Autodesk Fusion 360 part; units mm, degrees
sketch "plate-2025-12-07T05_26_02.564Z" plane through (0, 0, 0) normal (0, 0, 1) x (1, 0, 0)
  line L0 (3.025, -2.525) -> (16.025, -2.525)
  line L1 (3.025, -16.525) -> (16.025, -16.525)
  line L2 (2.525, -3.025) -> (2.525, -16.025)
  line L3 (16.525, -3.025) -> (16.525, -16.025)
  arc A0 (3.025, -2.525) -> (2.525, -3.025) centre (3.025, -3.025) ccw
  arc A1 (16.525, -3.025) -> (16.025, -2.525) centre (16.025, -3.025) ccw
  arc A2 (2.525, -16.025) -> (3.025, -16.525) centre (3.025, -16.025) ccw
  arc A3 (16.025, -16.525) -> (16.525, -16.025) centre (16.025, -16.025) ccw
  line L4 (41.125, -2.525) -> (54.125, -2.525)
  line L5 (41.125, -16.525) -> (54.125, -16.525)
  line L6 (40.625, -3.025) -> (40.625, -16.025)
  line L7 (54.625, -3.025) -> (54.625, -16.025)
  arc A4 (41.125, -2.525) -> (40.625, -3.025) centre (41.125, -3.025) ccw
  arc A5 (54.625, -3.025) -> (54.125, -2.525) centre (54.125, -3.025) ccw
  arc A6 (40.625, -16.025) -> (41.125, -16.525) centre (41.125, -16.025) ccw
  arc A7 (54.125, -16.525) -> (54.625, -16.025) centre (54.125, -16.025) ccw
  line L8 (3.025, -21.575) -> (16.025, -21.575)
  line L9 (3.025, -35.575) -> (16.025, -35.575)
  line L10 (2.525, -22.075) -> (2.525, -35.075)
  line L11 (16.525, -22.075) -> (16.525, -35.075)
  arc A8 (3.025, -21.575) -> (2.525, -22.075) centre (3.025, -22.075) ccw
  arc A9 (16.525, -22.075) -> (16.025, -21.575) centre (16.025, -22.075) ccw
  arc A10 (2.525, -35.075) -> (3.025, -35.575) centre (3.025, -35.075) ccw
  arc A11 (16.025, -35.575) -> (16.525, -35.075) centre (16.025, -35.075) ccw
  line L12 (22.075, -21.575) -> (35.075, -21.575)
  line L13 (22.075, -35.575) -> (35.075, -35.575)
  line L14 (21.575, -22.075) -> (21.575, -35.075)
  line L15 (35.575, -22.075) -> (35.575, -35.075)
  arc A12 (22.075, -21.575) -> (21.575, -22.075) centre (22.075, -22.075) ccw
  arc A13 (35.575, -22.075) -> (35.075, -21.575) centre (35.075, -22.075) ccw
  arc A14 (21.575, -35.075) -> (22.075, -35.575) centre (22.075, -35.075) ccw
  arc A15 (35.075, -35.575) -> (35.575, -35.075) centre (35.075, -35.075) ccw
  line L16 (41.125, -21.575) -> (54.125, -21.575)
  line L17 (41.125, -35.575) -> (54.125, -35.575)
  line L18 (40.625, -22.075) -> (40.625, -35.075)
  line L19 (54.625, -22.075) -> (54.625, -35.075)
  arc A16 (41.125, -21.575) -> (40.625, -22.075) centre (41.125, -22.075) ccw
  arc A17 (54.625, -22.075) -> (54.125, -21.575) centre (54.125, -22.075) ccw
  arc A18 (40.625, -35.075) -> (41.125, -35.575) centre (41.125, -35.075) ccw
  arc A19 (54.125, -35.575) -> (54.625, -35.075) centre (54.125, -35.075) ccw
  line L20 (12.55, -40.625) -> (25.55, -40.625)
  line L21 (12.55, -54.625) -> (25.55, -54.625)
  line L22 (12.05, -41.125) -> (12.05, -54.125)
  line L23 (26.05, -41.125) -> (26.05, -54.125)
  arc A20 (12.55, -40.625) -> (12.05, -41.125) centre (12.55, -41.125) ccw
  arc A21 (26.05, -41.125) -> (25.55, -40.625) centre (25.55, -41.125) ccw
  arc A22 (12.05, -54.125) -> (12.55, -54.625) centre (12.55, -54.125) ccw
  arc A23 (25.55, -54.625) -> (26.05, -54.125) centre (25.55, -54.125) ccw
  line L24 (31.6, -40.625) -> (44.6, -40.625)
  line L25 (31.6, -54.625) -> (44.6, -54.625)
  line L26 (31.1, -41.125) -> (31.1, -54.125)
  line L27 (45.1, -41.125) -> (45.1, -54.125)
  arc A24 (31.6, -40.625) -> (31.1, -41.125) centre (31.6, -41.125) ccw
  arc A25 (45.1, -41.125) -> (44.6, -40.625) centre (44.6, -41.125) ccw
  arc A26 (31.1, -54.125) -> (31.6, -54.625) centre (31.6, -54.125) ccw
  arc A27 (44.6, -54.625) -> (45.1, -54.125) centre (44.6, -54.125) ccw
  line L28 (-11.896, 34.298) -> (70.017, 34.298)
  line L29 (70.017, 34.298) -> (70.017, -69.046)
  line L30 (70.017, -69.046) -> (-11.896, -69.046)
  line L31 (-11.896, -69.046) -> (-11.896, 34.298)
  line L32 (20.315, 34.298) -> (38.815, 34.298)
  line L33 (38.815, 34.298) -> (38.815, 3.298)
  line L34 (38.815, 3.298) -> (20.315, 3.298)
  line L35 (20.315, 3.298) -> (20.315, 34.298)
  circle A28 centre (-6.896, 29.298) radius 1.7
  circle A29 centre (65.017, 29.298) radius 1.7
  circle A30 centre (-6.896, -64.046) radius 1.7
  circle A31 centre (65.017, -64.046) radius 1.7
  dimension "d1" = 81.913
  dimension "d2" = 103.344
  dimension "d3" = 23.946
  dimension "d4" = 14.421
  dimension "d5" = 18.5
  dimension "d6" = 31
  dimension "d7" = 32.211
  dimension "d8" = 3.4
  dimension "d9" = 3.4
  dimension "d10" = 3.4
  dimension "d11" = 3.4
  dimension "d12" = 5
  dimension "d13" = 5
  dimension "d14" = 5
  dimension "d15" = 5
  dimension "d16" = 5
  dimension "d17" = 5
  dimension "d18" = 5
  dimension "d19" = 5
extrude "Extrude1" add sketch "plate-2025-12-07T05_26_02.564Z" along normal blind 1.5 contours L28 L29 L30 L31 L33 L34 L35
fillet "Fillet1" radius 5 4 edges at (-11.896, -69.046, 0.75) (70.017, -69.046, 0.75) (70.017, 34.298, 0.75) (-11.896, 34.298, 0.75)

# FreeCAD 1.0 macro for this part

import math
import FreeCAD as App
import Part
import Sketcher
from FreeCAD import Vector


def edges_at(feature, points):
    """Names of the edges that pass closest to the given points."""
    edges = feature.Shape.Edges
    near = lambda p: min(range(len(edges)), key=lambda i: edges[i].distToShape(Part.Vertex(*p))[0])
    return sorted({f"Edge{near(p) + 1}" for p in points})


def add_polygon(sketch, points):
    """Adds a closed chain of lines whose ends are joined by coincident constraints."""
    first, n = sketch.GeometryCount, len(points)
    for a, b in zip(points, points[1:] + points[:1]):
        sketch.addGeometry(Part.LineSegment(App.Vector(*a, 0), App.Vector(*b, 0)), False)
    for i in range(n):
        sketch.addConstraint(Sketcher.Constraint("Coincident", first + i, 2, first + (i + 1) % n, 1))

doc = App.newDocument("Part")
body = doc.addObject("PartDesign::Body", "Body")

sketch1 = body.newObject("Sketcher::SketchObject", "Sketch")
sketch1.AttachmentSupport = (doc.getObject("XY_Plane"), [""])
sketch1.MapMode = "FlatFace"
add_polygon(sketch1, [(20.3, 34.3), (-11.9, 34.3), (-11.9, -69), (70, -69), (70, 34.3), (38.8, 34.3), (38.8, 3.3), (20.3, 3.3)])
sketch1.addGeometry(Part.Circle(Vector(-6.9, -64, 0), Vector(0, 0, 1), 1.7), False)
sketch1.addGeometry(Part.ArcOfCircle(Part.Circle(Vector(12.6, -41.1, 0), Vector(0, 0, 1), 0.5), math.radians(90), math.radians(180)), False)
sketch1.addGeometry(Part.LineSegment(Vector(12.6, -40.6, 0), Vector(25.6, -40.6, 0)), False)
sketch1.addGeometry(Part.ArcOfCircle(Part.Circle(Vector(25.6, -41.1, 0), Vector(0, 0, 1), 0.5), math.radians(0), math.radians(90)), False)
sketch1.addGeometry(Part.LineSegment(Vector(26.1, -41.1, 0), Vector(26.1, -54.1, 0)), False)
sketch1.addGeometry(Part.ArcOfCircle(Part.Circle(Vector(25.6, -54.1, 0), Vector(0, 0, 1), 0.5), math.radians(-90), math.radians(0)), False)
sketch1.addGeometry(Part.LineSegment(Vector(25.6, -54.6, 0), Vector(12.6, -54.6, 0)), False)
sketch1.addGeometry(Part.ArcOfCircle(Part.Circle(Vector(12.6, -54.1, 0), Vector(0, 0, 1), 0.5), math.radians(180), math.radians(270)), False)
sketch1.addGeometry(Part.LineSegment(Vector(12.1, -54.1, 0), Vector(12.1, -41.1, 0)), False)
sketch1.addGeometry(Part.ArcOfCircle(Part.Circle(Vector(3, -22.1, 0), Vector(0, 0, 1), 0.5), math.radians(90), math.radians(180)), False)
sketch1.addGeometry(Part.LineSegment(Vector(3, -21.6, 0), Vector(16, -21.6, 0)), False)
sketch1.addGeometry(Part.ArcOfCircle(Part.Circle(Vector(16, -22.1, 0), Vector(0, 0, 1), 0.5), math.radians(0), math.radians(90)), False)
sketch1.addGeometry(Part.LineSegment(Vector(16.5, -22.1, 0), Vector(16.5, -35.1, 0)), False)
sketch1.addGeometry(Part.ArcOfCircle(Part.Circle(Vector(16, -35.1, 0), Vector(0, 0, 1), 0.5), math.radians(-90), math.radians(0)), False)
sketch1.addGeometry(Part.LineSegment(Vector(16, -35.6, 0), Vector(3, -35.6, 0)), False)
sketch1.addGeometry(Part.ArcOfCircle(Part.Circle(Vector(3, -35.1, 0), Vector(0, 0, 1), 0.5), math.radians(180), math.radians(270)), False)
sketch1.addGeometry(Part.LineSegment(Vector(2.5, -35.1, 0), Vector(2.5, -22.1, 0)), False)
sketch1.addGeometry(Part.ArcOfCircle(Part.Circle(Vector(22.1, -22.1, 0), Vector(0, 0, 1), 0.5), math.radians(90), math.radians(180)), False)
sketch1.addGeometry(Part.LineSegment(Vector(22.1, -21.6, 0), Vector(35.1, -21.6, 0)), False)
sketch1.addGeometry(Part.ArcOfCircle(Part.Circle(Vector(35.1, -22.1, 0), Vector(0, 0, 1), 0.5), math.radians(0), math.radians(90)), False)
sketch1.addGeometry(Part.LineSegment(Vector(35.6, -22.1, 0), Vector(35.6, -35.1, 0)), False)
sketch1.addGeometry(Part.ArcOfCircle(Part.Circle(Vector(35.1, -35.1, 0), Vector(0, 0, 1), 0.5), math.radians(-90), math.radians(0)), False)
sketch1.addGeometry(Part.LineSegment(Vector(35.1, -35.6, 0), Vector(22.1, -35.6, 0)), False)
sketch1.addGeometry(Part.ArcOfCircle(Part.Circle(Vector(22.1, -35.1, 0), Vector(0, 0, 1), 0.5), math.radians(180), math.radians(270)), False)
sketch1.addGeometry(Part.LineSegment(Vector(21.6, -35.1, 0), Vector(21.6, -22.1, 0)), False)
sketch1.addGeometry(Part.ArcOfCircle(Part.Circle(Vector(31.6, -41.1, 0), Vector(0, 0, 1), 0.5), math.radians(90), math.radians(180)), False)
sketch1.addGeometry(Part.LineSegment(Vector(31.6, -40.6, 0), Vector(44.6, -40.6, 0)), False)
sketch1.addGeometry(Part.ArcOfCircle(Part.Circle(Vector(44.6, -41.1, 0), Vector(0, 0, 1), 0.5), math.radians(0), math.radians(90)), False)
sketch1.addGeometry(Part.LineSegment(Vector(45.1, -41.1, 0), Vector(45.1, -54.1, 0)), False)
sketch1.addGeometry(Part.ArcOfCircle(Part.Circle(Vector(44.6, -54.1, 0), Vector(0, 0, 1), 0.5), math.radians(-90), math.radians(0)), False)
sketch1.addGeometry(Part.LineSegment(Vector(44.6, -54.6, 0), Vector(31.6, -54.6, 0)), False)
sketch1.addGeometry(Part.ArcOfCircle(Part.Circle(Vector(31.6, -54.1, 0), Vector(0, 0, 1), 0.5), math.radians(180), math.radians(270)), False)
sketch1.addGeometry(Part.LineSegment(Vector(31.1, -54.1, 0), Vector(31.1, -41.1, 0)), False)
sketch1.addGeometry(Part.Circle(Vector(65, -64, 0), Vector(0, 0, 1), 1.7), False)
sketch1.addGeometry(Part.ArcOfCircle(Part.Circle(Vector(41.1, -22.1, 0), Vector(0, 0, 1), 0.5), math.radians(90), math.radians(180)), False)
sketch1.addGeometry(Part.LineSegment(Vector(41.1, -21.6, 0), Vector(54.1, -21.6, 0)), False)
sketch1.addGeometry(Part.ArcOfCircle(Part.Circle(Vector(54.1, -22.1, 0), Vector(0, 0, 1), 0.5), math.radians(0), math.radians(90)), False)
sketch1.addGeometry(Part.LineSegment(Vector(54.6, -22.1, 0), Vector(54.6, -35.1, 0)), False)
sketch1.addGeometry(Part.ArcOfCircle(Part.Circle(Vector(54.1, -35.1, 0), Vector(0, 0, 1), 0.5), math.radians(-90), math.radians(0)), False)
sketch1.addGeometry(Part.LineSegment(Vector(54.1, -35.6, 0), Vector(41.1, -35.6, 0)), False)
sketch1.addGeometry(Part.ArcOfCircle(Part.Circle(Vector(41.1, -35.1, 0), Vector(0, 0, 1), 0.5), math.radians(180), math.radians(270)), False)
sketch1.addGeometry(Part.LineSegment(Vector(40.6, -35.1, 0), Vector(40.6, -22.1, 0)), False)
sketch1.addGeometry(Part.ArcOfCircle(Part.Circle(Vector(3, -3, 0), Vector(0, 0, 1), 0.5), math.radians(90), math.radians(180)), False)
sketch1.addGeometry(Part.LineSegment(Vector(3, -2.5, 0), Vector(16, -2.5, 0)), False)
sketch1.addGeometry(Part.ArcOfCircle(Part.Circle(Vector(16, -3, 0), Vector(0, 0, 1), 0.5), math.radians(0), math.radians(90)), False)
sketch1.addGeometry(Part.LineSegment(Vector(16.5, -3, 0), Vector(16.5, -16, 0)), False)
sketch1.addGeometry(Part.ArcOfCircle(Part.Circle(Vector(16, -16, 0), Vector(0, 0, 1), 0.5), math.radians(-90), math.radians(0)), False)
sketch1.addGeometry(Part.LineSegment(Vector(16, -16.5, 0), Vector(3, -16.5, 0)), False)
sketch1.addGeometry(Part.ArcOfCircle(Part.Circle(Vector(3, -16, 0), Vector(0, 0, 1), 0.5), math.radians(180), math.radians(270)), False)
sketch1.addGeometry(Part.LineSegment(Vector(2.5, -16, 0), Vector(2.5, -3, 0)), False)
sketch1.addGeometry(Part.Circle(Vector(-6.9, 29.3, 0), Vector(0, 0, 1), 1.7), False)
sketch1.addGeometry(Part.ArcOfCircle(Part.Circle(Vector(41.1, -3, 0), Vector(0, 0, 1), 0.5), math.radians(90), math.radians(180)), False)
sketch1.addGeometry(Part.LineSegment(Vector(41.1, -2.5, 0), Vector(54.1, -2.5, 0)), False)
sketch1.addGeometry(Part.ArcOfCircle(Part.Circle(Vector(54.1, -3, 0), Vector(0, 0, 1), 0.5), math.radians(0), math.radians(90)), False)
sketch1.addGeometry(Part.LineSegment(Vector(54.6, -3, 0), Vector(54.6, -16, 0)), False)
sketch1.addGeometry(Part.ArcOfCircle(Part.Circle(Vector(54.1, -16, 0), Vector(0, 0, 1), 0.5), math.radians(-90), math.radians(0)), False)
sketch1.addGeometry(Part.LineSegment(Vector(54.1, -16.5, 0), Vector(41.1, -16.5, 0)), False)
sketch1.addGeometry(Part.ArcOfCircle(Part.Circle(Vector(41.1, -16, 0), Vector(0, 0, 1), 0.5), math.radians(180), math.radians(270)), False)
sketch1.addGeometry(Part.LineSegment(Vector(40.6, -16, 0), Vector(40.6, -3, 0)), False)
sketch1.addGeometry(Part.Circle(Vector(65, 29.3, 0), Vector(0, 0, 1), 1.7), False)
sketch1.addConstraint([
    Sketcher.Constraint("Tangent", 9, 1, 10, 1),
    Sketcher.Constraint("Tangent", 10, 2, 11, 2),
    Sketcher.Constraint("Tangent", 11, 1, 12, 1),
    Sketcher.Constraint("Tangent", 12, 2, 13, 2),
    Sketcher.Constraint("Tangent", 13, 1, 14, 1),
    Sketcher.Constraint("Tangent", 14, 2, 15, 2),
    Sketcher.Constraint("Tangent", 15, 1, 16, 1),
    Sketcher.Constraint("Tangent", 16, 2, 9, 2),
    Sketcher.Constraint("Tangent", 17, 1, 18, 1),
    Sketcher.Constraint("Tangent", 18, 2, 19, 2),
    Sketcher.Constraint("Tangent", 19, 1, 20, 1),
    Sketcher.Constraint("Tangent", 20, 2, 21, 2),
    Sketcher.Constraint("Tangent", 21, 1, 22, 1),
    Sketcher.Constraint("Tangent", 22, 2, 23, 2),
    Sketcher.Constraint("Tangent", 23, 1, 24, 1),
    Sketcher.Constraint("Tangent", 24, 2, 17, 2),
    Sketcher.Constraint("Tangent", 25, 1, 26, 1),
    Sketcher.Constraint("Tangent", 26, 2, 27, 2),
    Sketcher.Constraint("Tangent", 27, 1, 28, 1),
    Sketcher.Constraint("Tangent", 28, 2, 29, 2),
    Sketcher.Constraint("Tangent", 29, 1, 30, 1),
    Sketcher.Constraint("Tangent", 30, 2, 31, 2),
    Sketcher.Constraint("Tangent", 31, 1, 32, 1),
    Sketcher.Constraint("Tangent", 32, 2, 25, 2),
    Sketcher.Constraint("Tangent", 33, 1, 34, 1),
    Sketcher.Constraint("Tangent", 34, 2, 35, 2),
    Sketcher.Constraint("Tangent", 35, 1, 36, 1),
    Sketcher.Constraint("Tangent", 36, 2, 37, 2),
    Sketcher.Constraint("Tangent", 37, 1, 38, 1),
    Sketcher.Constraint("Tangent", 38, 2, 39, 2),
    Sketcher.Constraint("Tangent", 39, 1, 40, 1),
    Sketcher.Constraint("Tangent", 40, 2, 33, 2),
    Sketcher.Constraint("Tangent", 42, 1, 43, 1),
    Sketcher.Constraint("Tangent", 43, 2, 44, 2),
    Sketcher.Constraint("Tangent", 44, 1, 45, 1),
    Sketcher.Constraint("Tangent", 45, 2, 46, 2),
    Sketcher.Constraint("Tangent", 46, 1, 47, 1),
    Sketcher.Constraint("Tangent", 47, 2, 48, 2),
    Sketcher.Constraint("Tangent", 48, 1, 49, 1),
    Sketcher.Constraint("Tangent", 49, 2, 42, 2),
    Sketcher.Constraint("Tangent", 50, 1, 51, 1),
    Sketcher.Constraint("Tangent", 51, 2, 52, 2),
    Sketcher.Constraint("Tangent", 52, 1, 53, 1),
    Sketcher.Constraint("Tangent", 53, 2, 54, 2),
    Sketcher.Constraint("Tangent", 54, 1, 55, 1),
    Sketcher.Constraint("Tangent", 55, 2, 56, 2),
    Sketcher.Constraint("Tangent", 56, 1, 57, 1),
    Sketcher.Constraint("Tangent", 57, 2, 50, 2),
    Sketcher.Constraint("Tangent", 59, 1, 60, 1),
    Sketcher.Constraint("Tangent", 60, 2, 61, 2),
    Sketcher.Constraint("Tangent", 61, 1, 62, 1),
    Sketcher.Constraint("Tangent", 62, 2, 63, 2),
    Sketcher.Constraint("Tangent", 63, 1, 64, 1),
    Sketcher.Constraint("Tangent", 64, 2, 65, 2),
    Sketcher.Constraint("Tangent", 65, 1, 66, 1),
    Sketcher.Constraint("Tangent", 66, 2, 59, 2),
    Sketcher.Constraint("Horizontal", 0),
    Sketcher.Constraint("Vertical", 1),
    Sketcher.Constraint("Horizontal", 2),
    Sketcher.Constraint("Vertical", 3),
    Sketcher.Constraint("Horizontal", 4),
    Sketcher.Constraint("Vertical", 5),
    Sketcher.Constraint("Horizontal", 6),
    Sketcher.Constraint("Vertical", 7),
    Sketcher.Constraint("Horizontal", 10),
    Sketcher.Constraint("Vertical", 12),
    Sketcher.Constraint("Horizontal", 14),
    Sketcher.Constraint("Vertical", 16),
    Sketcher.Constraint("Horizontal", 18),
    Sketcher.Constraint("Vertical", 20),
    Sketcher.Constraint("Horizontal", 22),
    Sketcher.Constraint("Vertical", 24),
    Sketcher.Constraint("Horizontal", 26),
    Sketcher.Constraint("Vertical", 28),
    Sketcher.Constraint("Horizontal", 30),
    Sketcher.Constraint("Vertical", 32),
    Sketcher.Constraint("Horizontal", 34),
    Sketcher.Constraint("Vertical", 36),
    Sketcher.Constraint("Horizontal", 38),
    Sketcher.Constraint("Vertical", 40),
    Sketcher.Constraint("Horizontal", 43),
    Sketcher.Constraint("Vertical", 45),
    Sketcher.Constraint("Horizontal", 47),
    Sketcher.Constraint("Vertical", 49),
    Sketcher.Constraint("Horizontal", 51),
    Sketcher.Constraint("Vertical", 53),
    Sketcher.Constraint("Horizontal", 55),
    Sketcher.Constraint("Vertical", 57),
    Sketcher.Constraint("Horizontal", 60),
    Sketcher.Constraint("Vertical", 62),
    Sketcher.Constraint("Horizontal", 64),
    Sketcher.Constraint("Vertical", 66),
    Sketcher.Constraint("Equal", 9, 11),
    Sketcher.Constraint("Equal", 11, 13),
    Sketcher.Constraint("Equal", 13, 15),
    Sketcher.Constraint("Equal", 15, 17),
    Sketcher.Constraint("Equal", 17, 19),
    Sketcher.Constraint("Equal", 19, 21),
    Sketcher.Constraint("Equal", 21, 23),
    Sketcher.Constraint("Equal", 23, 25),
    Sketcher.Constraint("Equal", 25, 27),
    Sketcher.Constraint("Equal", 27, 29),
    Sketcher.Constraint("Equal", 29, 31),
    Sketcher.Constraint("Equal", 31, 33),
    Sketcher.Constraint("Equal", 33, 35),
    Sketcher.Constraint("Equal", 35, 37),
    Sketcher.Constraint("Equal", 37, 39),
    Sketcher.Constraint("Equal", 8, 41),
    Sketcher.Constraint("Equal", 39, 42),
    Sketcher.Constraint("Equal", 42, 44),
    Sketcher.Constraint("Equal", 44, 46),
    Sketcher.Constraint("Equal", 46, 48),
    Sketcher.Constraint("Equal", 48, 50),
    Sketcher.Constraint("Equal", 50, 52),
    Sketcher.Constraint("Equal", 52, 54),
    Sketcher.Constraint("Equal", 54, 56),
    Sketcher.Constraint("Equal", 41, 58),
    Sketcher.Constraint("Equal", 56, 59),
    Sketcher.Constraint("Equal", 59, 61),
    Sketcher.Constraint("Equal", 61, 63),
    Sketcher.Constraint("Equal", 63, 65),
    Sketcher.Constraint("Equal", 58, 67),
    Sketcher.Constraint("Horizontal", 19, 3, 25, 3),
    Sketcher.Constraint("Horizontal", 23, 3, 29, 3),
    Sketcher.Constraint("Horizontal", 11, 3, 33, 3),
    Sketcher.Constraint("Horizontal", 15, 3, 37, 3),
    Sketcher.Constraint("Horizontal", 8, 3, 41, 3),
    Sketcher.Constraint("Horizontal", 27, 3, 42, 3),
    Sketcher.Constraint("Horizontal", 31, 3, 46, 3),
    Sketcher.Constraint("Horizontal", 52, 3, 59, 3),
    Sketcher.Constraint("Horizontal", 56, 3, 63, 3),
    Sketcher.Constraint("Horizontal", 58, 3, 67, 3),
    Sketcher.Constraint("Horizontal", 0, 2, 3, 2),
    Sketcher.Constraint("Vertical", 23, 3, 50, 3),
    Sketcher.Constraint("Vertical", 21, 3, 52, 3),
    Sketcher.Constraint("Vertical", 8, 3, 58, 3),
    Sketcher.Constraint("Vertical", 48, 3, 59, 3),
    Sketcher.Constraint("Vertical", 46, 3, 61, 3),
    Sketcher.Constraint("Vertical", 41, 3, 67, 3),
    Sketcher.Constraint("Equal", 14, 18),
    Sketcher.Constraint("Equal", 22, 26),
    Sketcher.Constraint("Equal", 30, 34),
    Sketcher.Constraint("Equal", 38, 43),
    Sketcher.Constraint("Equal", 64, 12),
    Sketcher.Constraint("Equal", 16, 20),
    Sketcher.Constraint("Equal", 49, 53),
    Sketcher.Constraint("Diameter", 8, 3.4),
    Sketcher.Constraint("DistanceY", 5, 2, 5, 1, 31.0),
    Sketcher.Constraint("DistanceX", 6, 2, 6, 1, 18.5),
    Sketcher.Constraint("Radius", 9, 0.5),
    Sketcher.Constraint("DistanceX", 0, 2, 0, 1, 32.211),
    Sketcher.Constraint("DistanceX", 2, 1, 2, 2, 81.913),
    Sketcher.Constraint("DistanceX", 10, 1, 10, 2, 13.0),
    Sketcher.Constraint("DistanceY", 1, 2, 1, 1, 103.344),
    Sketcher.Constraint("DistanceX", -1, 1, 33, 3, 31.6),
    Sketcher.Constraint("DistanceX", -1, 1, 9, 3, 12.55),
    Sketcher.Constraint("DistanceX", 8, 3, -1, 1, 6.896),
    Sketcher.Constraint("DistanceY", 8, 3, -1, 1, 64.046),
    Sketcher.Constraint("DistanceY", 9, 3, -1, 1, 41.125),
    Sketcher.Constraint("DistanceX", -1, 1, 17, 3, 3.025),
    Sketcher.Constraint("DistanceY", 17, 3, -1, 1, 22.075),
    Sketcher.Constraint("DistanceX", -1, 1, 25, 3, 22.075),
    Sketcher.Constraint("DistanceX", -1, 1, 41, 3, 65.017),
    Sketcher.Constraint("DistanceX", -1, 1, 42, 3, 41.125),
    Sketcher.Constraint("DistanceY", 50, 3, -1, 1, 3.025),
    Sketcher.Constraint("DistanceY", -1, 1, 58, 3, 29.298),
    Sketcher.Constraint("DistanceX", 0, 2, -1, 1, 11.896),
    Sketcher.Constraint("DistanceY", -1, 1, 0, 2, 34.298),
])
pad1 = body.newObject("PartDesign::Pad", "Pad")
pad1.Profile = sketch1
pad1.Length = 1.5
doc.recompute()

fillet = body.newObject("PartDesign::Fillet", "Fillet")
fillet.Base = (pad1, edges_at(pad1, [
    (-11.896, -69.046, 0.75),
    (70.017, -69.046, 0.75),
    (70.017, 34.298, 0.75),
    (-11.896, 34.298, 0.75),
]))
fillet.Radius = 5

doc.recompute()
